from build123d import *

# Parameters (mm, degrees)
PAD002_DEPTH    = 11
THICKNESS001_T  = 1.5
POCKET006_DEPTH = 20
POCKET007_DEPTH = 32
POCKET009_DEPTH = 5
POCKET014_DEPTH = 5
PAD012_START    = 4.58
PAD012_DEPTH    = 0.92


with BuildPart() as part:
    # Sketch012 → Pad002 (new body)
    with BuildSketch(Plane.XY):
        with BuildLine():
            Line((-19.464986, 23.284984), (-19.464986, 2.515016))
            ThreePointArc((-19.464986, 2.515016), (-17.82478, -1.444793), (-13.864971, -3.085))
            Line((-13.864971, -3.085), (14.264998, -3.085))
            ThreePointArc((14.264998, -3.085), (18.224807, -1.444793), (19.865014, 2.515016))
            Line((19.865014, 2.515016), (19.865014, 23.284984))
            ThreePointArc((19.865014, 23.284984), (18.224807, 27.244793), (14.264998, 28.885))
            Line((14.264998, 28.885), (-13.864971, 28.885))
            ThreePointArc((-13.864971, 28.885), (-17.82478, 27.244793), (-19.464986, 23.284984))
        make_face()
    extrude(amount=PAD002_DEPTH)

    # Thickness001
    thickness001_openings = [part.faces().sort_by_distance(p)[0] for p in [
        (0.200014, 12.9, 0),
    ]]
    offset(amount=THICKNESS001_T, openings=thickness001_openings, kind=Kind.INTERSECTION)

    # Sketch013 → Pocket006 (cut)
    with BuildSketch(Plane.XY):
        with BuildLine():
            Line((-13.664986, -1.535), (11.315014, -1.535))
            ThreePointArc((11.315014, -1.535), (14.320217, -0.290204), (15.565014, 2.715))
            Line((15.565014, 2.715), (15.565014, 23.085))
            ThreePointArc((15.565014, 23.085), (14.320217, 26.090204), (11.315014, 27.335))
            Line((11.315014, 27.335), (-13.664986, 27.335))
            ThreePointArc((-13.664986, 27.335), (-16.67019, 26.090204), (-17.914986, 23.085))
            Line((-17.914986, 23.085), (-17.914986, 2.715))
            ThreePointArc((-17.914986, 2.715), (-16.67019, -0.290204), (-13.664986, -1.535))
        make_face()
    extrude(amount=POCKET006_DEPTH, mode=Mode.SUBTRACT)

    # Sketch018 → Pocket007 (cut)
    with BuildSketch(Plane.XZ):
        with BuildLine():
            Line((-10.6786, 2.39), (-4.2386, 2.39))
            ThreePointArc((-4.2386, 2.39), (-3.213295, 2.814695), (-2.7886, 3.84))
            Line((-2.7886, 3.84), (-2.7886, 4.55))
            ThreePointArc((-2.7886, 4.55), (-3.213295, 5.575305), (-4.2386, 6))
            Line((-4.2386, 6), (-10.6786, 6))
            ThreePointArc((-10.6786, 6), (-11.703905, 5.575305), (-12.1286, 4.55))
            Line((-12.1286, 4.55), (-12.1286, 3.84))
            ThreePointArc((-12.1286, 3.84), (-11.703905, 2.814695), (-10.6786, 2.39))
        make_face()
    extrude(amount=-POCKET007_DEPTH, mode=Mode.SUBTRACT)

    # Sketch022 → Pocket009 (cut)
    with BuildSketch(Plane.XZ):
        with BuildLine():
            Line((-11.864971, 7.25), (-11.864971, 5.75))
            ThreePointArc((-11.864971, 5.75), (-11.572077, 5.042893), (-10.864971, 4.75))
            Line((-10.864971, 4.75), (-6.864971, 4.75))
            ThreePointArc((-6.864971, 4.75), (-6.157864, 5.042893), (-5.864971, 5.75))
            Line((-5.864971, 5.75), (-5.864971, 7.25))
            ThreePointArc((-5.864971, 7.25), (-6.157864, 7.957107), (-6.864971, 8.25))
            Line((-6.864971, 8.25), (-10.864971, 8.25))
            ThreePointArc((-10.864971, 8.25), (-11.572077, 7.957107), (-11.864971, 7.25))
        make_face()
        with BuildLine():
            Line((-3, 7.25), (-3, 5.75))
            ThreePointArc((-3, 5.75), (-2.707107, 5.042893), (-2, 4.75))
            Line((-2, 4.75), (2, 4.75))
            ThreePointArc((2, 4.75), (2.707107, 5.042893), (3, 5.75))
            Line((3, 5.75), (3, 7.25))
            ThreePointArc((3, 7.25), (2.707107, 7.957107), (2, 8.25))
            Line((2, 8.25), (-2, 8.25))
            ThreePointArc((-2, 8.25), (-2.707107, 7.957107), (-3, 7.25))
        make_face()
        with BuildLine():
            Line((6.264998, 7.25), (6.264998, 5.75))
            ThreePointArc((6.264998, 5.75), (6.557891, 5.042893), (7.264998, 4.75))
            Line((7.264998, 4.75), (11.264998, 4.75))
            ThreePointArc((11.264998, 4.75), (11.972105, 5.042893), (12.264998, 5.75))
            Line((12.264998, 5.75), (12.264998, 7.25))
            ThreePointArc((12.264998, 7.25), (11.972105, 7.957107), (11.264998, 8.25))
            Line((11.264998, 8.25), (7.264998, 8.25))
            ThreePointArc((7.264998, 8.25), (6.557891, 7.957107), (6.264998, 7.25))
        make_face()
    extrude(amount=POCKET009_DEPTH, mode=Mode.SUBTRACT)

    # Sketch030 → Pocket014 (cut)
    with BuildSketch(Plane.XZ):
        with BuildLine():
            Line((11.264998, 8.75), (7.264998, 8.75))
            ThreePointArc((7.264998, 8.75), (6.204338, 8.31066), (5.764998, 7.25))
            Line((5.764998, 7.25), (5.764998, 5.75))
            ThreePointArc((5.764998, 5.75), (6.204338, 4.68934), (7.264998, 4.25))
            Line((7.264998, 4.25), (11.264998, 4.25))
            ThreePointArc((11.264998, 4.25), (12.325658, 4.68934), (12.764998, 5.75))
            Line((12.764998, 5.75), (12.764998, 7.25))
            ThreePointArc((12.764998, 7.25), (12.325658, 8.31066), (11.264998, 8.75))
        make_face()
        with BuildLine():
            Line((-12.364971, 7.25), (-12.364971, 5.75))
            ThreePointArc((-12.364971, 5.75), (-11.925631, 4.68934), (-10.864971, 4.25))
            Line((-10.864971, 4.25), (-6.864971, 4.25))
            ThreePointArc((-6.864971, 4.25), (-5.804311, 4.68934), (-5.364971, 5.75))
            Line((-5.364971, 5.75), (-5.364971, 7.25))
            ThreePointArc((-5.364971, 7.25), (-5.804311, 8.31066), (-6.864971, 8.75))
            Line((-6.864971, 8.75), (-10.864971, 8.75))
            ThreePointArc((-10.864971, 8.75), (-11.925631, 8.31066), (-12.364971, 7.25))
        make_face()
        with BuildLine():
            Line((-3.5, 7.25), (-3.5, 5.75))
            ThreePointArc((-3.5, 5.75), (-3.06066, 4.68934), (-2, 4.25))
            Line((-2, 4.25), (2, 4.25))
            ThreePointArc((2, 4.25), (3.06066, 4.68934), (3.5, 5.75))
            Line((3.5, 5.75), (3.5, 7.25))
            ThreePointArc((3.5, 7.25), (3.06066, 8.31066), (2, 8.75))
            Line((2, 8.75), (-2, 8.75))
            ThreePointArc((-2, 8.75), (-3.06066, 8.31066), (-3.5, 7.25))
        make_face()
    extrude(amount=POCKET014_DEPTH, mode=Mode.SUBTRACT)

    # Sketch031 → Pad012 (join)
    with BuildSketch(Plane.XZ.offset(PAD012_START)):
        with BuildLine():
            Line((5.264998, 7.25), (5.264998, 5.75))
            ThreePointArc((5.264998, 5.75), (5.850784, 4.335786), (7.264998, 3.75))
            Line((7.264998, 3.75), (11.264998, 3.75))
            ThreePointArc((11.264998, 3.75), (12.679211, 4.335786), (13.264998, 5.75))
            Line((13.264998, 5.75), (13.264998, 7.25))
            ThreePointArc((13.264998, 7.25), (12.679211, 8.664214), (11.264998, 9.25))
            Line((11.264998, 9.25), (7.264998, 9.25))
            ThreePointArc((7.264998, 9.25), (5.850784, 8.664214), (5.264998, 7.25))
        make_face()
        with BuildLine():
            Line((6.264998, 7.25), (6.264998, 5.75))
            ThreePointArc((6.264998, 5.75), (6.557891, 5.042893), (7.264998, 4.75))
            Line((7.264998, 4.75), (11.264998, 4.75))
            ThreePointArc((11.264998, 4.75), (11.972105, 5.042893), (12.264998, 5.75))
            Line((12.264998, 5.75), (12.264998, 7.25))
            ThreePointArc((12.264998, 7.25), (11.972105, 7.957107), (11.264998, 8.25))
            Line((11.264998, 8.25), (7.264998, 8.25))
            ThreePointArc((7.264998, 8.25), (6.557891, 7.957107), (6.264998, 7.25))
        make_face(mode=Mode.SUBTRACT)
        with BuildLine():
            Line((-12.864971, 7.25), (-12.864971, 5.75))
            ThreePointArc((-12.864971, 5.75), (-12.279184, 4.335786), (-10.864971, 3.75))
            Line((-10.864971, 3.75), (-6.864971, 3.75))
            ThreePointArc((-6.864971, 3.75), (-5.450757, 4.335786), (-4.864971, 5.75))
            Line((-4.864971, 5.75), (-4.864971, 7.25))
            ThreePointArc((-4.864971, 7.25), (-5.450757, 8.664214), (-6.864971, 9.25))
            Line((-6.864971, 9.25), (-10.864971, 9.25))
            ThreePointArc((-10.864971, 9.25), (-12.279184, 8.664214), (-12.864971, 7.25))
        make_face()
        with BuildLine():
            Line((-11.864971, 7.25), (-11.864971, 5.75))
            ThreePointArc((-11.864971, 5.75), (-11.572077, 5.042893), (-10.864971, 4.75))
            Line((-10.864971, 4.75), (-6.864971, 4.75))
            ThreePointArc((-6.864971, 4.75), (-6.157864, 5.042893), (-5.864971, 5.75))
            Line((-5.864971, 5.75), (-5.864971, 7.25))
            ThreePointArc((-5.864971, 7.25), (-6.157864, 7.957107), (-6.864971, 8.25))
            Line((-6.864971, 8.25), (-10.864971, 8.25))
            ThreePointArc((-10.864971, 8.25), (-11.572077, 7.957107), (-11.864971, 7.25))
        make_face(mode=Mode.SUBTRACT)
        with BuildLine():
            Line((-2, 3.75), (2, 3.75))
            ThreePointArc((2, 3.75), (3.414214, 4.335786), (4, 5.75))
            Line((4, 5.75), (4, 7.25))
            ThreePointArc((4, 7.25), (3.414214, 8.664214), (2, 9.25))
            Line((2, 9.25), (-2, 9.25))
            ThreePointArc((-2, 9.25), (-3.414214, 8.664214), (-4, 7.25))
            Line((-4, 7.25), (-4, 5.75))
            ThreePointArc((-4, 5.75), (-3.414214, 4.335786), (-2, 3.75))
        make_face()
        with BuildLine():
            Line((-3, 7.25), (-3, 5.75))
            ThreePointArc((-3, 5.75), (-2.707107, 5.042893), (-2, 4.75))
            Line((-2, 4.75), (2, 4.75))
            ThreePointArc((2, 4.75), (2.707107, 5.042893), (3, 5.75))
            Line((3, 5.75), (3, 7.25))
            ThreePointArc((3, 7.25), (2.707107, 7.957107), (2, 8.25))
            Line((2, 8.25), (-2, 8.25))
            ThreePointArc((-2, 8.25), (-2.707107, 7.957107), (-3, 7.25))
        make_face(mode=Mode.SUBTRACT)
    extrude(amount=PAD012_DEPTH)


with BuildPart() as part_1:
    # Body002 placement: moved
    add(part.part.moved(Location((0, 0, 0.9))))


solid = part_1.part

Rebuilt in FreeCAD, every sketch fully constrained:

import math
import FreeCAD as App
import Part
import Sketcher

V = App.Vector
Q = App.Units.Quantity


def faces_at(feature, points):
    """Names of the faces that lie closest to the given points."""
    faces = feature.Shape.Faces
    near = lambda p: min(range(len(faces)), key=lambda i: faces[i].distToShape(Part.Vertex(*p))[0])
    return sorted({f"Face{near(p) + 1}" for p in points})

doc = App.newDocument("Part")
body = doc.addObject("PartDesign::Body", "Body")

# Sketch on XY plane
sketch1 = body.newObject("Sketcher::SketchObject", "Sketch")
sketch1.AttachmentSupport = (doc.getObject("XY_Plane"), [""])
sketch1.MapMode = "FlatFace"
sketch1.addGeometry([
    Part.LineSegment(V(-19, 23, 0), V(-19, 3, 0)),  # 0
    Part.ArcOfCircle(Part.Circle(V(-14, 3, 0), V(0, 0, 1), 6), math.radians(180), math.radians(270)),  # 1
    Part.LineSegment(V(-14, -3, 0), V(14, -3, 0)),  # 2
    Part.ArcOfCircle(Part.Circle(V(14, 3, 0), V(0, 0, 1), 6), math.radians(-90), math.radians(0)),  # 3
    Part.LineSegment(V(20, 3, 0), V(20, 23, 0)),  # 4
    Part.ArcOfCircle(Part.Circle(V(14, 23, 0), V(0, 0, 1), 6), math.radians(0), math.radians(90)),  # 5
    Part.LineSegment(V(14, 29, 0), V(-14, 29, 0)),  # 6
    Part.ArcOfCircle(Part.Circle(V(-14, 23, 0), V(0, 0, 1), 6), math.radians(90), math.radians(180)),  # 7
], False)
sketch1.addConstraint([
    Sketcher.Constraint("Tangent", 0, 2, 1, 1),
    Sketcher.Constraint("Tangent", 1, 2, 2, 1),
    Sketcher.Constraint("Tangent", 2, 2, 3, 1),
    Sketcher.Constraint("Tangent", 3, 2, 4, 1),
    Sketcher.Constraint("Tangent", 4, 2, 5, 1),
    Sketcher.Constraint("Tangent", 5, 2, 6, 1),
    Sketcher.Constraint("Tangent", 6, 2, 7, 1),
    Sketcher.Constraint("Tangent", 7, 2, 0, 1),
    Sketcher.Constraint("Vertical", 0),
    Sketcher.Constraint("Horizontal", 2),
    Sketcher.Constraint("Vertical", 4),
    Sketcher.Constraint("Horizontal", 6),
    Sketcher.Constraint("Equal", 1, 3),
    Sketcher.Constraint("Equal", 3, 5),
    Sketcher.Constraint("Equal", 5, 7),
    Sketcher.Constraint("DistanceY", 1, 2, -1, 1, Q("3.085 mm")),
    Sketcher.Constraint("DistanceY", -1, 1, 5, 2, Q("28.885 mm")),
    Sketcher.Constraint("Radius", 1, Q("5.600015 mm")),
    Sketcher.Constraint("DistanceX", 2, 1, 2, 2, Q("28.129969 mm")),
    Sketcher.Constraint("DistanceX", 1, 3, -1, 1, Q("13.864971 mm")),
])
pad1 = body.newObject("PartDesign::Pad", "Pad")
pad1.Profile = sketch1
pad1.Length = 11
doc.recompute()

thickness = body.newObject("PartDesign::Thickness", "Thickness")
thickness.Base = (pad1, faces_at(pad1, [(0.2, 12.9, 0)]))
thickness.Value = 1.5
thickness.Reversed = False
thickness.Join = "Intersection"

# Sketch on XY plane
sketch2 = body.newObject("Sketcher::SketchObject", "Sketch001")
sketch2.AttachmentSupport = (doc.getObject("XY_Plane"), [""])
sketch2.MapMode = "FlatFace"
sketch2.addGeometry([
    Part.LineSegment(V(-13.7, -1.5, 0), V(11.3, -1.5, 0)),  # 0
    Part.ArcOfCircle(Part.Circle(V(11.3, 2.7, 0), V(0, 0, 1), 4.3), math.radians(-90), math.radians(0)),  # 1
    Part.LineSegment(V(15.6, 2.7, 0), V(15.6, 23.1, 0)),  # 2
    Part.ArcOfCircle(Part.Circle(V(11.3, 23.1, 0), V(0, 0, 1), 4.3), math.radians(0), math.radians(90)),  # 3
    Part.LineSegment(V(11.3, 27.3, 0), V(-13.7, 27.3, 0)),  # 4
    Part.ArcOfCircle(Part.Circle(V(-13.7, 23.1, 0), V(0, 0, 1), 4.2), math.radians(90), math.radians(180)),  # 5
    Part.LineSegment(V(-17.9, 23.1, 0), V(-17.9, 2.7, 0)),  # 6
    Part.ArcOfCircle(Part.Circle(V(-13.7, 2.7, 0), V(0, 0, 1), 4.2), math.radians(180), math.radians(270)),  # 7
], False)
sketch2.addConstraint([
    Sketcher.Constraint("Tangent", 0, 2, 1, 1),
    Sketcher.Constraint("Tangent", 1, 2, 2, 1),
    Sketcher.Constraint("Tangent", 2, 2, 3, 1),
    Sketcher.Constraint("Tangent", 3, 2, 4, 1),
    Sketcher.Constraint("Tangent", 4, 2, 5, 1),
    Sketcher.Constraint("Tangent", 5, 2, 6, 1),
    Sketcher.Constraint("Tangent", 6, 2, 7, 1),
    Sketcher.Constraint("Tangent", 7, 2, 0, 1),
    Sketcher.Constraint("Horizontal", 0),
    Sketcher.Constraint("Vertical", 2),
    Sketcher.Constraint("Horizontal", 4),
    Sketcher.Constraint("Vertical", 6),
    Sketcher.Constraint("Equal", 1, 3),
    Sketcher.Constraint("Equal", 3, 5),
    Sketcher.Constraint("Equal", 5, 7),
    Sketcher.Constraint("Radius", 1, Q("4.250001 mm")),
    Sketcher.Constraint("DistanceX", 0, 1, 0, 2, Q("24.98 mm")),
    Sketcher.Constraint("DistanceY", 2, 1, 2, 2, Q("20.37 mm")),
    Sketcher.Constraint("DistanceY", -1, 1, 1, 3, Q("2.715001 mm")),
    Sketcher.Constraint("DistanceX", -1, 1, 1, 3, Q("11.315013 mm")),
])
pocket1 = body.newObject("PartDesign::Pocket", "Pocket")
pocket1.Profile = sketch2
pocket1.Length = 20
pocket1.Reversed = True

# Sketch on XZ plane
sketch3 = body.newObject("Sketcher::SketchObject", "Sketch002")
sketch3.AttachmentSupport = (doc.getObject("XZ_Plane"), [""])
sketch3.MapMode = "FlatFace"
sketch3.addGeometry([
    Part.LineSegment(V(-10.7, 2.4, 0), V(-4.2, 2.4, 0)),  # 0
    Part.ArcOfCircle(Part.Circle(V(-4.2, 3.8, 0), V(0, 0, 1), 1.4), math.radians(-90), math.radians(0)),  # 1
    Part.LineSegment(V(-2.8, 3.8, 0), V(-2.8, 4.5, 0)),  # 2
    Part.ArcOfCircle(Part.Circle(V(-4.2, 4.6, 0), V(0, 0, 1), 1.4), math.radians(0), math.radians(90)),  # 3
    Part.LineSegment(V(-4.2, 6, 0), V(-10.7, 6, 0)),  # 4
    Part.ArcOfCircle(Part.Circle(V(-10.7, 4.6, 0), V(0, 0, 1), 1.4), math.radians(90), math.radians(180)),  # 5
    Part.LineSegment(V(-12.1, 4.5, 0), V(-12.1, 3.8, 0)),  # 6
    Part.ArcOfCircle(Part.Circle(V(-10.7, 3.8, 0), V(0, 0, 1), 1.4), math.radians(180), math.radians(270)),  # 7
], False)
sketch3.addConstraint([
    Sketcher.Constraint("Tangent", 0, 2, 1, 1),
    Sketcher.Constraint("Tangent", 1, 2, 2, 1),
    Sketcher.Constraint("Tangent", 2, 2, 3, 1),
    Sketcher.Constraint("Tangent", 3, 2, 4, 1),
    Sketcher.Constraint("Tangent", 4, 2, 5, 1),
    Sketcher.Constraint("Tangent", 5, 2, 6, 1),
    Sketcher.Constraint("Tangent", 6, 2, 7, 1),
    Sketcher.Constraint("Tangent", 7, 2, 0, 1),
    Sketcher.Constraint("Horizontal", 0),
    Sketcher.Constraint("Vertical", 2),
    Sketcher.Constraint("Horizontal", 4),
    Sketcher.Constraint("Vertical", 6),
    Sketcher.Constraint("Equal", 1, 3),
    Sketcher.Constraint("Equal", 3, 5),
    Sketcher.Constraint("Equal", 5, 7),
    Sketcher.Constraint("Radius", 1, Q("1.449999 mm")),
    Sketcher.Constraint("DistanceY", -1, 1, 3, 2, Q("6 mm")),
    Sketcher.Constraint("DistanceX", 0, 1, 0, 2, Q("6.44 mm")),
    Sketcher.Constraint("DistanceY", 2, 1, 2, 2, Q("0.71 mm")),
    Sketcher.Constraint("DistanceX", 1, 3, -1, 1, Q("4.238599 mm")),
])
pocket2 = body.newObject("PartDesign::Pocket", "Pocket001")
pocket2.Profile = sketch3
pocket2.Length = 32

# Sketch on XZ plane
sketch4 = body.newObject("Sketcher::SketchObject", "Sketch003")
sketch4.AttachmentSupport = (doc.getObject("XZ_Plane"), [""])
sketch4.MapMode = "FlatFace"
sketch4.addGeometry([
    Part.LineSegment(V(-11.9, 7.2, 0), V(-11.9, 5.8, 0)),  # 0
    Part.ArcOfCircle(Part.Circle(V(-10.9, 5.8, 0), V(0, 0, 1), 1), math.radians(-180), math.radians(-90)),  # 1
    Part.LineSegment(V(-10.9, 4.8, 0), V(-6.9, 4.8, 0)),  # 2
    Part.ArcOfCircle(Part.Circle(V(-6.9, 5.7, 0), V(0, 0, 1), 1), math.radians(-90), math.radians(0)),  # 3
    Part.LineSegment(V(-5.9, 5.8, 0), V(-5.9, 7.2, 0)),  # 4
    Part.ArcOfCircle(Part.Circle(V(-6.9, 7.3, 0), V(0, 0, 1), 1), math.radians(0), math.radians(90)),  # 5
    Part.LineSegment(V(-6.9, 8.2, 0), V(-10.9, 8.2, 0)),  # 6
    Part.ArcOfCircle(Part.Circle(V(-10.9, 7.2, 0), V(0, 0, 1), 1), math.radians(90), math.radians(180)),  # 7
    Part.LineSegment(V(-3, 7.2, 0), V(-3, 5.8, 0)),  # 8
    Part.ArcOfCircle(Part.Circle(V(-2, 5.7, 0), V(0, 0, 1), 1), math.radians(180), math.radians(270)),  # 9
    Part.LineSegment(V(-2, 4.8, 0), V(2, 4.8, 0)),  # 10
    Part.ArcOfCircle(Part.Circle(V(2, 5.7, 0), V(0, 0, 1), 1), math.radians(-90), math.radians(0)),  # 11
    Part.LineSegment(V(3, 5.8, 0), V(3, 7.2, 0)),  # 12
    Part.ArcOfCircle(Part.Circle(V(2, 7.3, 0), V(0, 0, 1), 1), math.radians(0), math.radians(90)),  # 13
    Part.LineSegment(V(2, 8.2, 0), V(-2, 8.2, 0)),  # 14
    Part.ArcOfCircle(Part.Circle(V(-2, 7.3, 0), V(0, 0, 1), 1), math.radians(90), math.radians(180)),  # 15
    Part.LineSegment(V(6.3, 7.2, 0), V(6.3, 5.8, 0)),  # 16
    Part.ArcOfCircle(Part.Circle(V(7.3, 5.7, 0), V(0, 0, 1), 1), math.radians(180), math.radians(270)),  # 17
    Part.LineSegment(V(7.3, 4.8, 0), V(11.3, 4.8, 0)),  # 18
    Part.ArcOfCircle(Part.Circle(V(11.3, 5.7, 0), V(0, 0, 1), 1), math.radians(-90), math.radians(0)),  # 19
    Part.LineSegment(V(12.3, 5.8, 0), V(12.3, 7.2, 0)),  # 20
    Part.ArcOfCircle(Part.Circle(V(11.3, 7.3, 0), V(0, 0, 1), 1), math.radians(0), math.radians(90)),  # 21
    Part.LineSegment(V(11.3, 8.2, 0), V(7.3, 8.2, 0)),  # 22
    Part.ArcOfCircle(Part.Circle(V(7.3, 7.3, 0), V(0, 0, 1), 1), math.radians(90), math.radians(180)),  # 23
], False)
sketch4.addConstraint([
    Sketcher.Constraint("Tangent", 0, 2, 1, 1),
    Sketcher.Constraint("Tangent", 1, 2, 2, 1),
    Sketcher.Constraint("Tangent", 2, 2, 3, 1),
    Sketcher.Constraint("Tangent", 3, 2, 4, 1),
    Sketcher.Constraint("Tangent", 4, 2, 5, 1),
    Sketcher.Constraint("Tangent", 5, 2, 6, 1),
    Sketcher.Constraint("Tangent", 6, 2, 7, 1),
    Sketcher.Constraint("Tangent", 7, 2, 0, 1),
    Sketcher.Constraint("Tangent", 8, 2, 9, 1),
    Sketcher.Constraint("Tangent", 9, 2, 10, 1),
    Sketcher.Constraint("Tangent", 10, 2, 11, 1),
    Sketcher.Constraint("Tangent", 11, 2, 12, 1),
    Sketcher.Constraint("Tangent", 12, 2, 13, 1),
    Sketcher.Constraint("Tangent", 13, 2, 14, 1),
    Sketcher.Constraint("Tangent", 14, 2, 15, 1),
    Sketcher.Constraint("Tangent", 15, 2, 8, 1),
    Sketcher.Constraint("Tangent", 16, 2, 17, 1),
    Sketcher.Constraint("Tangent", 17, 2, 18, 1),
    Sketcher.Constraint("Tangent", 18, 2, 19, 1),
    Sketcher.Constraint("Tangent", 19, 2, 20, 1),
    Sketcher.Constraint("Tangent", 20, 2, 21, 1),
    Sketcher.Constraint("Tangent", 21, 2, 22, 1),
    Sketcher.Constraint("Tangent", 22, 2, 23, 1),
    Sketcher.Constraint("Tangent", 23, 2, 16, 1),
    Sketcher.Constraint("Vertical", 0),
    Sketcher.Constraint("Horizontal", 2),
    Sketcher.Constraint("Vertical", 4),
    Sketcher.Constraint("Horizontal", 6),
    Sketcher.Constraint("Vertical", 8),
    Sketcher.Constraint("Horizontal", 10),
    Sketcher.Constraint("Vertical", 12),
    Sketcher.Constraint("Horizontal", 14),
    Sketcher.Constraint("Vertical", 16),
    Sketcher.Constraint("Horizontal", 18),
    Sketcher.Constraint("Vertical", 20),
    Sketcher.Constraint("Horizontal", 22),
    Sketcher.Constraint("Equal", 1, 3),
    Sketcher.Constraint("Equal", 3, 5),
    Sketcher.Constraint("Equal", 5, 7),
    Sketcher.Constraint("Equal", 7, 9),
    Sketcher.Constraint("Equal", 9, 11),
    Sketcher.Constraint("Equal", 11, 13),
    Sketcher.Constraint("Equal", 13, 15),
    Sketcher.Constraint("Equal", 15, 17),
    Sketcher.Constraint("Equal", 17, 19),
    Sketcher.Constraint("Equal", 19, 21),
    Sketcher.Constraint("Equal", 21, 23),
    Sketcher.Constraint("Horizontal", 3, 3, 9, 3),
    Sketcher.Constraint("Horizontal", 7, 3, 13, 3),
    Sketcher.Constraint("Horizontal", 11, 3, 17, 3),
    Sketcher.Constraint("Horizontal", 15, 3, 21, 3),
    Sketcher.Constraint("Equal", 6, 10),
    Sketcher.Constraint("Equal", 14, 18),
    Sketcher.Constraint("Radius", 1, Q("1.000001 mm")),
    Sketcher.Constraint("DistanceX", 2, 1, 2, 2, Q("4 mm")),
    Sketcher.Constraint("DistanceY", 0, 2, 0, 1, Q("1.5 mm")),
    Sketcher.Constraint("DistanceX", 9, 3, -1, 1, Q("2.000001 mm")),
    Sketcher.Constraint("DistanceY", -1, 1, 1, 3, Q("5.750001 mm")),
    Sketcher.Constraint("DistanceX", -1, 1, 19, 3, Q("11.264999 mm")),
    Sketcher.Constraint("DistanceX", 1, 3, -1, 1, Q("10.86497 mm")),
])
pocket3 = body.newObject("PartDesign::Pocket", "Pocket002")
pocket3.Profile = sketch4
pocket3.Length = 5
pocket3.Reversed = True

# Sketch on XZ plane
sketch5 = body.newObject("Sketcher::SketchObject", "Sketch004")
sketch5.AttachmentSupport = (doc.getObject("XZ_Plane"), [""])
sketch5.MapMode = "FlatFace"
sketch5.addGeometry([
    Part.LineSegment(V(11.3, 8.8, 0), V(7.3, 8.8, 0)),  # 0
    Part.ArcOfCircle(Part.Circle(V(7.3, 7.2, 0), V(0, 0, 1), 1.5), math.radians(90), math.radians(180)),  # 1
    Part.LineSegment(V(5.8, 7.2, 0), V(5.8, 5.8, 0)),  # 2
    Part.ArcOfCircle(Part.Circle(V(7.3, 5.8, 0), V(0, 0, 1), 1.5), math.radians(-180), math.radians(-90)),  # 3
    Part.LineSegment(V(7.3, 4.2, 0), V(11.3, 4.2, 0)),  # 4
    Part.ArcOfCircle(Part.Circle(V(11.3, 5.8, 0), V(0, 0, 1), 1.5), math.radians(-90), math.radians(0)),  # 5
    Part.LineSegment(V(12.8, 5.8, 0), V(12.8, 7.2, 0)),  # 6
    Part.ArcOfCircle(Part.Circle(V(11.3, 7.2, 0), V(0, 0, 1), 1.5), math.radians(0), math.radians(90)),  # 7
    Part.LineSegment(V(-12.4, 7.2, 0), V(-12.4, 5.8, 0)),  # 8
    Part.ArcOfCircle(Part.Circle(V(-10.9, 5.8, 0), V(0, 0, 1), 1.5), math.radians(-180), math.radians(-90)),  # 9
    Part.LineSegment(V(-10.9, 4.2, 0), V(-6.9, 4.2, 0)),  # 10
    Part.ArcOfCircle(Part.Circle(V(-6.9, 5.8, 0), V(0, 0, 1), 1.5), math.radians(-90), math.radians(0)),  # 11
    Part.LineSegment(V(-5.4, 5.8, 0), V(-5.4, 7.2, 0)),  # 12
    Part.ArcOfCircle(Part.Circle(V(-6.9, 7.2, 0), V(0, 0, 1), 1.5), math.radians(0), math.radians(90)),  # 13
    Part.LineSegment(V(-6.9, 8.8, 0), V(-10.9, 8.8, 0)),  # 14
    Part.ArcOfCircle(Part.Circle(V(-10.9, 7.2, 0), V(0, 0, 1), 1.5), math.radians(90), math.radians(180)),  # 15
    Part.LineSegment(V(-3.5, 7.2, 0), V(-3.5, 5.8, 0)),  # 16
    Part.ArcOfCircle(Part.Circle(V(-2, 5.8, 0), V(0, 0, 1), 1.5), math.radians(-180), math.radians(-90)),  # 17
    Part.LineSegment(V(-2, 4.2, 0), V(2, 4.2, 0)),  # 18
    Part.ArcOfCircle(Part.Circle(V(2, 5.8, 0), V(0, 0, 1), 1.5), math.radians(-90), math.radians(0)),  # 19
    Part.LineSegment(V(3.5, 5.8, 0), V(3.5, 7.2, 0)),  # 20
    Part.ArcOfCircle(Part.Circle(V(2, 7.2, 0), V(0, 0, 1), 1.5), math.radians(0), math.radians(90)),  # 21
    Part.LineSegment(V(2, 8.8, 0), V(-2, 8.8, 0)),  # 22
    Part.ArcOfCircle(Part.Circle(V(-2, 7.2, 0), V(0, 0, 1), 1.5), math.radians(90), math.radians(180)),  # 23
], False)
sketch5.addConstraint([
    Sketcher.Constraint("Tangent", 0, 2, 1, 1),
    Sketcher.Constraint("Tangent", 1, 2, 2, 1),
    Sketcher.Constraint("Tangent", 2, 2, 3, 1),
    Sketcher.Constraint("Tangent", 3, 2, 4, 1),
    Sketcher.Constraint("Tangent", 4, 2, 5, 1),
    Sketcher.Constraint("Tangent", 5, 2, 6, 1),
    Sketcher.Constraint("Tangent", 6, 2, 7, 1),
    Sketcher.Constraint("Tangent", 7, 2, 0, 1),
    Sketcher.Constraint("Tangent", 8, 2, 9, 1),
    Sketcher.Constraint("Tangent", 9, 2, 10, 1),
    Sketcher.Constraint("Tangent", 10, 2, 11, 1),
    Sketcher.Constraint("Tangent", 11, 2, 12, 1),
    Sketcher.Constraint("Tangent", 12, 2, 13, 1),
    Sketcher.Constraint("Tangent", 13, 2, 14, 1),
    Sketcher.Constraint("Tangent", 14, 2, 15, 1),
    Sketcher.Constraint("Tangent", 15, 2, 8, 1),
    Sketcher.Constraint("Tangent", 16, 2, 17, 1),
    Sketcher.Constraint("Tangent", 17, 2, 18, 1),
    Sketcher.Constraint("Tangent", 18, 2, 19, 1),
    Sketcher.Constraint("Tangent", 19, 2, 20, 1),
    Sketcher.Constraint("Tangent", 20, 2, 21, 1),
    Sketcher.Constraint("Tangent", 21, 2, 22, 1),
    Sketcher.Constraint("Tangent", 22, 2, 23, 1),
    Sketcher.Constraint("Tangent", 23, 2, 16, 1),
    Sketcher.Constraint("Horizontal", 0),
    Sketcher.Constraint("Vertical", 2),
    Sketcher.Constraint("Horizontal", 4),
    Sketcher.Constraint("Vertical", 6),
    Sketcher.Constraint("Vertical", 8),
    Sketcher.Constraint("Horizontal", 10),
    Sketcher.Constraint("Vertical", 12),
    Sketcher.Constraint("Horizontal", 14),
    Sketcher.Constraint("Vertical", 16),
    Sketcher.Constraint("Horizontal", 18),
    Sketcher.Constraint("Vertical", 20),
    Sketcher.Constraint("Horizontal", 22),
    Sketcher.Constraint("Equal", 1, 3),
    Sketcher.Constraint("Equal", 3, 5),
    Sketcher.Constraint("Equal", 5, 7),
    Sketcher.Constraint("Equal", 7, 9),
    Sketcher.Constraint("Equal", 9, 11),
    Sketcher.Constraint("Equal", 11, 13),
    Sketcher.Constraint("Equal", 13, 15),
    Sketcher.Constraint("Equal", 15, 17),
    Sketcher.Constraint("Equal", 17, 19),
    Sketcher.Constraint("Equal", 19, 21),
    Sketcher.Constraint("Equal", 21, 23),
    Sketcher.Constraint("Horizontal", 5, 3, 9, 3),
    Sketcher.Constraint("Horizontal", 7, 3, 13, 3),
    Sketcher.Constraint("Horizontal", 11, 3, 17, 3),
    Sketcher.Constraint("Horizontal", 15, 3, 21, 3),
    Sketcher.Constraint("Equal", 4, 10),
    Sketcher.Constraint("Equal", 14, 18),
    Sketcher.Constraint("Radius", 1, Q("1.500001 mm")),
    Sketcher.Constraint("DistanceX", 0, 2, 0, 1, Q("4 mm")),
    Sketcher.Constraint("DistanceY", 2, 2, 2, 1, Q("1.5 mm")),
    Sketcher.Constraint("DistanceX", 17, 3, -1, 1, Q("1.999999 mm")),
    Sketcher.Constraint("DistanceY", -1, 1, 1, 3, Q("7.249999 mm")),
    Sketcher.Constraint("DistanceX", -1, 1, 1, 3, Q("7.264999 mm")),
    Sketcher.Constraint("DistanceX", 9, 3, -1, 1, Q("10.86497 mm")),
])
pocket4 = body.newObject("PartDesign::Pocket", "Pocket003")
pocket4.Profile = sketch5
pocket4.Length = 5
pocket4.Reversed = True

# Sketch on XZ plane
sketch6 = body.newObject("Sketcher::SketchObject", "Sketch005")
sketch6.AttachmentSupport = (doc.getObject("XZ_Plane"), [""])
sketch6.MapMode = "FlatFace"
sketch6.AttachmentOffset = App.Placement(V(0, 0, 4.58), App.Rotation())
sketch6.addGeometry([
    Part.LineSegment(V(5.3, 7.2, 0), V(5.3, 5.8, 0)),  # 0
    Part.ArcOfCircle(Part.Circle(V(7.3, 5.7, 0), V(0, 0, 1), 2), math.radians(180), math.radians(270)),  # 1
    Part.LineSegment(V(7.3, 3.8, 0), V(11.3, 3.8, 0)),  # 2
    Part.ArcOfCircle(Part.Circle(V(11.3, 5.8, 0), V(0, 0, 1), 2), math.radians(-90), math.radians(0)),  # 3
    Part.LineSegment(V(13.3, 5.8, 0), V(13.3, 7.2, 0)),  # 4
    Part.ArcOfCircle(Part.Circle(V(11.3, 7.2, 0), V(0, 0, 1), 2), math.radians(0), math.radians(90)),  # 5
    Part.LineSegment(V(11.3, 9.2, 0), V(7.3, 9.2, 0)),  # 6
    Part.ArcOfCircle(Part.Circle(V(7.3, 7.3, 0), V(0, 0, 1), 2), math.radians(90), math.radians(180)),  # 7
    Part.LineSegment(V(6.3, 5.8, 0), V(6.3, 7.2, 0)),  # 8
    Part.ArcOfCircle(Part.Circle(V(7.3, 7.3, 0), V(0, 0, 1), 1), math.radians(90), math.radians(180)),  # 9
    Part.LineSegment(V(7.3, 8.2, 0), V(11.3, 8.2, 0)),  # 10
    Part.ArcOfCircle(Part.Circle(V(11.3, 7.3, 0), V(0, 0, 1), 1), math.radians(0), math.radians(90)),  # 11
    Part.LineSegment(V(12.3, 7.2, 0), V(12.3, 5.8, 0)),  # 12
    Part.ArcOfCircle(Part.Circle(V(11.3, 5.7, 0), V(0, 0, 1), 1), math.radians(-90), math.radians(0)),  # 13
    Part.LineSegment(V(11.3, 4.8, 0), V(7.3, 4.8, 0)),  # 14
    Part.ArcOfCircle(Part.Circle(V(7.3, 5.7, 0), V(0, 0, 1), 1), math.radians(180), math.radians(270)),  # 15
    Part.LineSegment(V(-12.9, 7.2, 0), V(-12.9, 5.8, 0)),  # 16
    Part.ArcOfCircle(Part.Circle(V(-10.9, 5.8, 0), V(0, 0, 1), 2), math.radians(-180), math.radians(-90)),  # 17
    Part.LineSegment(V(-10.9, 3.8, 0), V(-6.9, 3.8, 0)),  # 18
    Part.ArcOfCircle(Part.Circle(V(-6.9, 5.7, 0), V(0, 0, 1), 2), math.radians(-90), math.radians(0)),  # 19
    Part.LineSegment(V(-4.9, 5.8, 0), V(-4.9, 7.2, 0)),  # 20
    Part.ArcOfCircle(Part.Circle(V(-6.9, 7.3, 0), V(0, 0, 1), 2), math.radians(0), math.radians(90)),  # 21
    Part.LineSegment(V(-6.9, 9.2, 0), V(-10.9, 9.2, 0)),  # 22
    Part.ArcOfCircle(Part.Circle(V(-10.9, 7.2, 0), V(0, 0, 1), 2), math.radians(90), math.radians(180)),  # 23
    Part.LineSegment(V(-11.9, 5.8, 0), V(-11.9, 7.2, 0)),  # 24
    Part.ArcOfCircle(Part.Circle(V(-10.9, 7.2, 0), V(0, 0, 1), 1), math.radians(90), math.radians(180)),  # 25
    Part.LineSegment(V(-10.9, 8.2, 0), V(-6.9, 8.2, 0)),  # 26
    Part.ArcOfCircle(Part.Circle(V(-6.9, 7.3, 0), V(0, 0, 1), 1), math.radians(0), math.radians(90)),  # 27
    Part.LineSegment(V(-5.9, 7.2, 0), V(-5.9, 5.8, 0)),  # 28
    Part.ArcOfCircle(Part.Circle(V(-6.9, 5.7, 0), V(0, 0, 1), 1), math.radians(-90), math.radians(0)),  # 29
    Part.LineSegment(V(-6.9, 4.8, 0), V(-10.9, 4.8, 0)),  # 30
    Part.ArcOfCircle(Part.Circle(V(-10.9, 5.8, 0), V(0, 0, 1), 1), math.radians(-180), math.radians(-90)),  # 31
    Part.LineSegment(V(-2, 3.8, 0), V(2, 3.8, 0)),  # 32
    Part.ArcOfCircle(Part.Circle(V(2, 5.7, 0), V(0, 0, 1), 2), math.radians(-90), math.radians(0)),  # 33
    Part.LineSegment(V(4, 5.8, 0), V(4, 7.2, 0)),  # 34
    Part.ArcOfCircle(Part.Circle(V(2, 7.3, 0), V(0, 0, 1), 2), math.radians(0), math.radians(90)),  # 35
    Part.LineSegment(V(2, 9.2, 0), V(-2, 9.2, 0)),  # 36
    Part.ArcOfCircle(Part.Circle(V(-2, 7.3, 0), V(0, 0, 1), 2), math.radians(90), math.radians(180)),  # 37
    Part.LineSegment(V(-4, 7.2, 0), V(-4, 5.8, 0)),  # 38
    Part.ArcOfCircle(Part.Circle(V(-2, 5.7, 0), V(0, 0, 1), 2), math.radians(180), math.radians(270)),  # 39
    Part.LineSegment(V(-3, 5.8, 0), V(-3, 7.2, 0)),  # 40
    Part.ArcOfCircle(Part.Circle(V(-2, 7.3, 0), V(0, 0, 1), 1), math.radians(90), math.radians(180)),  # 41
    Part.LineSegment(V(-2, 8.2, 0), V(2, 8.2, 0)),  # 42
    Part.ArcOfCircle(Part.Circle(V(2, 7.3, 0), V(0, 0, 1), 1), math.radians(0), math.radians(90)),  # 43
    Part.LineSegment(V(3, 7.2, 0), V(3, 5.8, 0)),  # 44
    Part.ArcOfCircle(Part.Circle(V(2, 5.7, 0), V(0, 0, 1), 1), math.radians(-90), math.radians(0)),  # 45
    Part.LineSegment(V(2, 4.8, 0), V(-2, 4.8, 0)),  # 46
    Part.ArcOfCircle(Part.Circle(V(-2, 5.7, 0), V(0, 0, 1), 1), math.radians(180), math.radians(270)),  # 47
], False)
sketch6.addConstraint([
    Sketcher.Constraint("Tangent", 0, 2, 1, 1),
    Sketcher.Constraint("Tangent", 1, 2, 2, 1),
    Sketcher.Constraint("Tangent", 2, 2, 3, 1),
    Sketcher.Constraint("Tangent", 3, 2, 4, 1),
    Sketcher.Constraint("Tangent", 4, 2, 5, 1),
    Sketcher.Constraint("Tangent", 5, 2, 6, 1),
    Sketcher.Constraint("Tangent", 6, 2, 7, 1),
    Sketcher.Constraint("Tangent", 7, 2, 0, 1),
    Sketcher.Constraint("Tangent", 8, 2, 9, 2),
    Sketcher.Constraint("Tangent", 9, 1, 10, 1),
    Sketcher.Constraint("Tangent", 10, 2, 11, 2),
    Sketcher.Constraint("Tangent", 11, 1, 12, 1),
    Sketcher.Constraint("Tangent", 12, 2, 13, 2),
    Sketcher.Constraint("Tangent", 13, 1, 14, 1),
    Sketcher.Constraint("Tangent", 14, 2, 15, 2),
    Sketcher.Constraint("Tangent", 15, 1, 8, 1),
    Sketcher.Constraint("Tangent", 16, 2, 17, 1),
    Sketcher.Constraint("Tangent", 17, 2, 18, 1),
    Sketcher.Constraint("Tangent", 18, 2, 19, 1),
    Sketcher.Constraint("Tangent", 19, 2, 20, 1),
    Sketcher.Constraint("Tangent", 20, 2, 21, 1),
    Sketcher.Constraint("Tangent", 21, 2, 22, 1),
    Sketcher.Constraint("Tangent", 22, 2, 23, 1),
    Sketcher.Constraint("Tangent", 23, 2, 16, 1),
    Sketcher.Constraint("Tangent", 24, 2, 25, 2),
    Sketcher.Constraint("Tangent", 25, 1, 26, 1),
    Sketcher.Constraint("Tangent", 26, 2, 27, 2),
    Sketcher.Constraint("Tangent", 27, 1, 28, 1),
    Sketcher.Constraint("Tangent", 28, 2, 29, 2),
    Sketcher.Constraint("Tangent", 29, 1, 30, 1),
    Sketcher.Constraint("Tangent", 30, 2, 31, 2),
    Sketcher.Constraint("Tangent", 31, 1, 24, 1),
    Sketcher.Constraint("Tangent", 32, 2, 33, 1),
    Sketcher.Constraint("Tangent", 33, 2, 34, 1),
    Sketcher.Constraint("Tangent", 34, 2, 35, 1),
    Sketcher.Constraint("Tangent", 35, 2, 36, 1),
    Sketcher.Constraint("Tangent", 36, 2, 37, 1),
    Sketcher.Constraint("Tangent", 37, 2, 38, 1),
    Sketcher.Constraint("Tangent", 38, 2, 39, 1),
    Sketcher.Constraint("Tangent", 39, 2, 32, 1),
    Sketcher.Constraint("Tangent", 40, 2, 41, 2),
    Sketcher.Constraint("Tangent", 41, 1, 42, 1),
    Sketcher.Constraint("Tangent", 42, 2, 43, 2),
    Sketcher.Constraint("Tangent", 43, 1, 44, 1),
    Sketcher.Constraint("Tangent", 44, 2, 45, 2),
    Sketcher.Constraint("Tangent", 45, 1, 46, 1),
    Sketcher.Constraint("Tangent", 46, 2, 47, 2),
    Sketcher.Constraint("Tangent", 47, 1, 40, 1),
    Sketcher.Constraint("Vertical", 0),
    Sketcher.Constraint("Horizontal", 2),
    Sketcher.Constraint("Vertical", 4),
    Sketcher.Constraint("Horizontal", 6),
    Sketcher.Constraint("Vertical", 8),
    Sketcher.Constraint("Horizontal", 10),
    Sketcher.Constraint("Vertical", 12),
    Sketcher.Constraint("Horizontal", 14),
    Sketcher.Constraint("Vertical", 16),
    Sketcher.Constraint("Horizontal", 18),
    Sketcher.Constraint("Vertical", 20),
    Sketcher.Constraint("Horizontal", 22),
    Sketcher.Constraint("Vertical", 24),
    Sketcher.Constraint("Horizontal", 26),
    Sketcher.Constraint("Vertical", 28),
    Sketcher.Constraint("Horizontal", 30),
    Sketcher.Constraint("Horizontal", 32),
    Sketcher.Constraint("Vertical", 34),
    Sketcher.Constraint("Horizontal", 36),
    Sketcher.Constraint("Vertical", 38),
    Sketcher.Constraint("Vertical", 40),
    Sketcher.Constraint("Horizontal", 42),
    Sketcher.Constraint("Vertical", 44),
    Sketcher.Constraint("Horizontal", 46),
    Sketcher.Constraint("Coincident", 9, 3, 7, 3),
    Sketcher.Constraint("Coincident", 11, 3, 5, 3),
    Sketcher.Constraint("Coincident", 13, 3, 3, 3),
    Sketcher.Constraint("Coincident", 25, 3, 23, 3),
    Sketcher.Constraint("Coincident", 27, 3, 21, 3),
    Sketcher.Constraint("Coincident", 29, 3, 19, 3),
    Sketcher.Constraint("Coincident", 41, 3, 37, 3),
    Sketcher.Constraint("Coincident", 43, 3, 35, 3),
    Sketcher.Constraint("Coincident", 45, 3, 33, 3),
    Sketcher.Constraint("Equal", 1, 3),
    Sketcher.Constraint("Equal", 3, 5),
    Sketcher.Constraint("Equal", 5, 7),
    Sketcher.Constraint("Equal", 13, 15),
    Sketcher.Constraint("Equal", 7, 17),
    Sketcher.Constraint("Equal", 17, 19),
    Sketcher.Constraint("Equal", 19, 21),
    Sketcher.Constraint("Equal", 21, 23),
    Sketcher.Constraint("Equal", 15, 25),
    Sketcher.Constraint("Equal", 29, 31),
    Sketcher.Constraint("Equal", 23, 33),
    Sketcher.Constraint("Equal", 33, 35),
    Sketcher.Constraint("Equal", 35, 37),
    Sketcher.Constraint("Equal", 37, 39),
    Sketcher.Constraint("Equal", 31, 41),
    Sketcher.Constraint("Equal", 45, 47),
    Sketcher.Constraint("Horizontal", 15, 3, 17, 3),
    Sketcher.Constraint("Horizontal", 11, 3, 21, 3),
    Sketcher.Constraint("Horizontal", 29, 3, 33, 3),
    Sketcher.Constraint("Horizontal", 27, 3, 35, 3),
    Sketcher.Constraint("Equal", 14, 18),
    Sketcher.Constraint("Equal", 30, 32),
    Sketcher.Constraint("Radius", 1, Q("1.999999 mm")),
    Sketcher.Constraint("Radius", 9, Q("0.999999 mm")),
    Sketcher.Constraint("DistanceX", 2, 1, 2, 2, Q("4 mm")),
    Sketcher.Constraint("DistanceY", 0, 2, 0, 1, Q("1.5 mm")),
    Sketcher.Constraint("DistanceX", -1, 1, 33, 3, Q("2.000001 mm")),
    Sketcher.Constraint("DistanceY", -1, 1, 1, 3, Q("5.749999 mm")),
    Sketcher.Constraint("DistanceX", -1, 1, 11, 3, Q("11.264999 mm")),
    Sketcher.Constraint("DistanceX", 17, 3, -1, 1, Q("10.864971 mm")),
])
pad2 = body.newObject("PartDesign::Pad", "Pad001")
pad2.Profile = sketch6
pad2.Length = 0.92
body2 = doc.addObject("PartDesign::Body", "Body001")
doc.recompute()

body.Placement = App.Placement(V(0, 0, 0.9), App.Rotation(V(0, 0, 1), 0))
boolean = body2.newObject("PartDesign::Boolean", "Boolean")
boolean.Type = "Fuse"
boolean.addObjects([body])

doc.recompute()
